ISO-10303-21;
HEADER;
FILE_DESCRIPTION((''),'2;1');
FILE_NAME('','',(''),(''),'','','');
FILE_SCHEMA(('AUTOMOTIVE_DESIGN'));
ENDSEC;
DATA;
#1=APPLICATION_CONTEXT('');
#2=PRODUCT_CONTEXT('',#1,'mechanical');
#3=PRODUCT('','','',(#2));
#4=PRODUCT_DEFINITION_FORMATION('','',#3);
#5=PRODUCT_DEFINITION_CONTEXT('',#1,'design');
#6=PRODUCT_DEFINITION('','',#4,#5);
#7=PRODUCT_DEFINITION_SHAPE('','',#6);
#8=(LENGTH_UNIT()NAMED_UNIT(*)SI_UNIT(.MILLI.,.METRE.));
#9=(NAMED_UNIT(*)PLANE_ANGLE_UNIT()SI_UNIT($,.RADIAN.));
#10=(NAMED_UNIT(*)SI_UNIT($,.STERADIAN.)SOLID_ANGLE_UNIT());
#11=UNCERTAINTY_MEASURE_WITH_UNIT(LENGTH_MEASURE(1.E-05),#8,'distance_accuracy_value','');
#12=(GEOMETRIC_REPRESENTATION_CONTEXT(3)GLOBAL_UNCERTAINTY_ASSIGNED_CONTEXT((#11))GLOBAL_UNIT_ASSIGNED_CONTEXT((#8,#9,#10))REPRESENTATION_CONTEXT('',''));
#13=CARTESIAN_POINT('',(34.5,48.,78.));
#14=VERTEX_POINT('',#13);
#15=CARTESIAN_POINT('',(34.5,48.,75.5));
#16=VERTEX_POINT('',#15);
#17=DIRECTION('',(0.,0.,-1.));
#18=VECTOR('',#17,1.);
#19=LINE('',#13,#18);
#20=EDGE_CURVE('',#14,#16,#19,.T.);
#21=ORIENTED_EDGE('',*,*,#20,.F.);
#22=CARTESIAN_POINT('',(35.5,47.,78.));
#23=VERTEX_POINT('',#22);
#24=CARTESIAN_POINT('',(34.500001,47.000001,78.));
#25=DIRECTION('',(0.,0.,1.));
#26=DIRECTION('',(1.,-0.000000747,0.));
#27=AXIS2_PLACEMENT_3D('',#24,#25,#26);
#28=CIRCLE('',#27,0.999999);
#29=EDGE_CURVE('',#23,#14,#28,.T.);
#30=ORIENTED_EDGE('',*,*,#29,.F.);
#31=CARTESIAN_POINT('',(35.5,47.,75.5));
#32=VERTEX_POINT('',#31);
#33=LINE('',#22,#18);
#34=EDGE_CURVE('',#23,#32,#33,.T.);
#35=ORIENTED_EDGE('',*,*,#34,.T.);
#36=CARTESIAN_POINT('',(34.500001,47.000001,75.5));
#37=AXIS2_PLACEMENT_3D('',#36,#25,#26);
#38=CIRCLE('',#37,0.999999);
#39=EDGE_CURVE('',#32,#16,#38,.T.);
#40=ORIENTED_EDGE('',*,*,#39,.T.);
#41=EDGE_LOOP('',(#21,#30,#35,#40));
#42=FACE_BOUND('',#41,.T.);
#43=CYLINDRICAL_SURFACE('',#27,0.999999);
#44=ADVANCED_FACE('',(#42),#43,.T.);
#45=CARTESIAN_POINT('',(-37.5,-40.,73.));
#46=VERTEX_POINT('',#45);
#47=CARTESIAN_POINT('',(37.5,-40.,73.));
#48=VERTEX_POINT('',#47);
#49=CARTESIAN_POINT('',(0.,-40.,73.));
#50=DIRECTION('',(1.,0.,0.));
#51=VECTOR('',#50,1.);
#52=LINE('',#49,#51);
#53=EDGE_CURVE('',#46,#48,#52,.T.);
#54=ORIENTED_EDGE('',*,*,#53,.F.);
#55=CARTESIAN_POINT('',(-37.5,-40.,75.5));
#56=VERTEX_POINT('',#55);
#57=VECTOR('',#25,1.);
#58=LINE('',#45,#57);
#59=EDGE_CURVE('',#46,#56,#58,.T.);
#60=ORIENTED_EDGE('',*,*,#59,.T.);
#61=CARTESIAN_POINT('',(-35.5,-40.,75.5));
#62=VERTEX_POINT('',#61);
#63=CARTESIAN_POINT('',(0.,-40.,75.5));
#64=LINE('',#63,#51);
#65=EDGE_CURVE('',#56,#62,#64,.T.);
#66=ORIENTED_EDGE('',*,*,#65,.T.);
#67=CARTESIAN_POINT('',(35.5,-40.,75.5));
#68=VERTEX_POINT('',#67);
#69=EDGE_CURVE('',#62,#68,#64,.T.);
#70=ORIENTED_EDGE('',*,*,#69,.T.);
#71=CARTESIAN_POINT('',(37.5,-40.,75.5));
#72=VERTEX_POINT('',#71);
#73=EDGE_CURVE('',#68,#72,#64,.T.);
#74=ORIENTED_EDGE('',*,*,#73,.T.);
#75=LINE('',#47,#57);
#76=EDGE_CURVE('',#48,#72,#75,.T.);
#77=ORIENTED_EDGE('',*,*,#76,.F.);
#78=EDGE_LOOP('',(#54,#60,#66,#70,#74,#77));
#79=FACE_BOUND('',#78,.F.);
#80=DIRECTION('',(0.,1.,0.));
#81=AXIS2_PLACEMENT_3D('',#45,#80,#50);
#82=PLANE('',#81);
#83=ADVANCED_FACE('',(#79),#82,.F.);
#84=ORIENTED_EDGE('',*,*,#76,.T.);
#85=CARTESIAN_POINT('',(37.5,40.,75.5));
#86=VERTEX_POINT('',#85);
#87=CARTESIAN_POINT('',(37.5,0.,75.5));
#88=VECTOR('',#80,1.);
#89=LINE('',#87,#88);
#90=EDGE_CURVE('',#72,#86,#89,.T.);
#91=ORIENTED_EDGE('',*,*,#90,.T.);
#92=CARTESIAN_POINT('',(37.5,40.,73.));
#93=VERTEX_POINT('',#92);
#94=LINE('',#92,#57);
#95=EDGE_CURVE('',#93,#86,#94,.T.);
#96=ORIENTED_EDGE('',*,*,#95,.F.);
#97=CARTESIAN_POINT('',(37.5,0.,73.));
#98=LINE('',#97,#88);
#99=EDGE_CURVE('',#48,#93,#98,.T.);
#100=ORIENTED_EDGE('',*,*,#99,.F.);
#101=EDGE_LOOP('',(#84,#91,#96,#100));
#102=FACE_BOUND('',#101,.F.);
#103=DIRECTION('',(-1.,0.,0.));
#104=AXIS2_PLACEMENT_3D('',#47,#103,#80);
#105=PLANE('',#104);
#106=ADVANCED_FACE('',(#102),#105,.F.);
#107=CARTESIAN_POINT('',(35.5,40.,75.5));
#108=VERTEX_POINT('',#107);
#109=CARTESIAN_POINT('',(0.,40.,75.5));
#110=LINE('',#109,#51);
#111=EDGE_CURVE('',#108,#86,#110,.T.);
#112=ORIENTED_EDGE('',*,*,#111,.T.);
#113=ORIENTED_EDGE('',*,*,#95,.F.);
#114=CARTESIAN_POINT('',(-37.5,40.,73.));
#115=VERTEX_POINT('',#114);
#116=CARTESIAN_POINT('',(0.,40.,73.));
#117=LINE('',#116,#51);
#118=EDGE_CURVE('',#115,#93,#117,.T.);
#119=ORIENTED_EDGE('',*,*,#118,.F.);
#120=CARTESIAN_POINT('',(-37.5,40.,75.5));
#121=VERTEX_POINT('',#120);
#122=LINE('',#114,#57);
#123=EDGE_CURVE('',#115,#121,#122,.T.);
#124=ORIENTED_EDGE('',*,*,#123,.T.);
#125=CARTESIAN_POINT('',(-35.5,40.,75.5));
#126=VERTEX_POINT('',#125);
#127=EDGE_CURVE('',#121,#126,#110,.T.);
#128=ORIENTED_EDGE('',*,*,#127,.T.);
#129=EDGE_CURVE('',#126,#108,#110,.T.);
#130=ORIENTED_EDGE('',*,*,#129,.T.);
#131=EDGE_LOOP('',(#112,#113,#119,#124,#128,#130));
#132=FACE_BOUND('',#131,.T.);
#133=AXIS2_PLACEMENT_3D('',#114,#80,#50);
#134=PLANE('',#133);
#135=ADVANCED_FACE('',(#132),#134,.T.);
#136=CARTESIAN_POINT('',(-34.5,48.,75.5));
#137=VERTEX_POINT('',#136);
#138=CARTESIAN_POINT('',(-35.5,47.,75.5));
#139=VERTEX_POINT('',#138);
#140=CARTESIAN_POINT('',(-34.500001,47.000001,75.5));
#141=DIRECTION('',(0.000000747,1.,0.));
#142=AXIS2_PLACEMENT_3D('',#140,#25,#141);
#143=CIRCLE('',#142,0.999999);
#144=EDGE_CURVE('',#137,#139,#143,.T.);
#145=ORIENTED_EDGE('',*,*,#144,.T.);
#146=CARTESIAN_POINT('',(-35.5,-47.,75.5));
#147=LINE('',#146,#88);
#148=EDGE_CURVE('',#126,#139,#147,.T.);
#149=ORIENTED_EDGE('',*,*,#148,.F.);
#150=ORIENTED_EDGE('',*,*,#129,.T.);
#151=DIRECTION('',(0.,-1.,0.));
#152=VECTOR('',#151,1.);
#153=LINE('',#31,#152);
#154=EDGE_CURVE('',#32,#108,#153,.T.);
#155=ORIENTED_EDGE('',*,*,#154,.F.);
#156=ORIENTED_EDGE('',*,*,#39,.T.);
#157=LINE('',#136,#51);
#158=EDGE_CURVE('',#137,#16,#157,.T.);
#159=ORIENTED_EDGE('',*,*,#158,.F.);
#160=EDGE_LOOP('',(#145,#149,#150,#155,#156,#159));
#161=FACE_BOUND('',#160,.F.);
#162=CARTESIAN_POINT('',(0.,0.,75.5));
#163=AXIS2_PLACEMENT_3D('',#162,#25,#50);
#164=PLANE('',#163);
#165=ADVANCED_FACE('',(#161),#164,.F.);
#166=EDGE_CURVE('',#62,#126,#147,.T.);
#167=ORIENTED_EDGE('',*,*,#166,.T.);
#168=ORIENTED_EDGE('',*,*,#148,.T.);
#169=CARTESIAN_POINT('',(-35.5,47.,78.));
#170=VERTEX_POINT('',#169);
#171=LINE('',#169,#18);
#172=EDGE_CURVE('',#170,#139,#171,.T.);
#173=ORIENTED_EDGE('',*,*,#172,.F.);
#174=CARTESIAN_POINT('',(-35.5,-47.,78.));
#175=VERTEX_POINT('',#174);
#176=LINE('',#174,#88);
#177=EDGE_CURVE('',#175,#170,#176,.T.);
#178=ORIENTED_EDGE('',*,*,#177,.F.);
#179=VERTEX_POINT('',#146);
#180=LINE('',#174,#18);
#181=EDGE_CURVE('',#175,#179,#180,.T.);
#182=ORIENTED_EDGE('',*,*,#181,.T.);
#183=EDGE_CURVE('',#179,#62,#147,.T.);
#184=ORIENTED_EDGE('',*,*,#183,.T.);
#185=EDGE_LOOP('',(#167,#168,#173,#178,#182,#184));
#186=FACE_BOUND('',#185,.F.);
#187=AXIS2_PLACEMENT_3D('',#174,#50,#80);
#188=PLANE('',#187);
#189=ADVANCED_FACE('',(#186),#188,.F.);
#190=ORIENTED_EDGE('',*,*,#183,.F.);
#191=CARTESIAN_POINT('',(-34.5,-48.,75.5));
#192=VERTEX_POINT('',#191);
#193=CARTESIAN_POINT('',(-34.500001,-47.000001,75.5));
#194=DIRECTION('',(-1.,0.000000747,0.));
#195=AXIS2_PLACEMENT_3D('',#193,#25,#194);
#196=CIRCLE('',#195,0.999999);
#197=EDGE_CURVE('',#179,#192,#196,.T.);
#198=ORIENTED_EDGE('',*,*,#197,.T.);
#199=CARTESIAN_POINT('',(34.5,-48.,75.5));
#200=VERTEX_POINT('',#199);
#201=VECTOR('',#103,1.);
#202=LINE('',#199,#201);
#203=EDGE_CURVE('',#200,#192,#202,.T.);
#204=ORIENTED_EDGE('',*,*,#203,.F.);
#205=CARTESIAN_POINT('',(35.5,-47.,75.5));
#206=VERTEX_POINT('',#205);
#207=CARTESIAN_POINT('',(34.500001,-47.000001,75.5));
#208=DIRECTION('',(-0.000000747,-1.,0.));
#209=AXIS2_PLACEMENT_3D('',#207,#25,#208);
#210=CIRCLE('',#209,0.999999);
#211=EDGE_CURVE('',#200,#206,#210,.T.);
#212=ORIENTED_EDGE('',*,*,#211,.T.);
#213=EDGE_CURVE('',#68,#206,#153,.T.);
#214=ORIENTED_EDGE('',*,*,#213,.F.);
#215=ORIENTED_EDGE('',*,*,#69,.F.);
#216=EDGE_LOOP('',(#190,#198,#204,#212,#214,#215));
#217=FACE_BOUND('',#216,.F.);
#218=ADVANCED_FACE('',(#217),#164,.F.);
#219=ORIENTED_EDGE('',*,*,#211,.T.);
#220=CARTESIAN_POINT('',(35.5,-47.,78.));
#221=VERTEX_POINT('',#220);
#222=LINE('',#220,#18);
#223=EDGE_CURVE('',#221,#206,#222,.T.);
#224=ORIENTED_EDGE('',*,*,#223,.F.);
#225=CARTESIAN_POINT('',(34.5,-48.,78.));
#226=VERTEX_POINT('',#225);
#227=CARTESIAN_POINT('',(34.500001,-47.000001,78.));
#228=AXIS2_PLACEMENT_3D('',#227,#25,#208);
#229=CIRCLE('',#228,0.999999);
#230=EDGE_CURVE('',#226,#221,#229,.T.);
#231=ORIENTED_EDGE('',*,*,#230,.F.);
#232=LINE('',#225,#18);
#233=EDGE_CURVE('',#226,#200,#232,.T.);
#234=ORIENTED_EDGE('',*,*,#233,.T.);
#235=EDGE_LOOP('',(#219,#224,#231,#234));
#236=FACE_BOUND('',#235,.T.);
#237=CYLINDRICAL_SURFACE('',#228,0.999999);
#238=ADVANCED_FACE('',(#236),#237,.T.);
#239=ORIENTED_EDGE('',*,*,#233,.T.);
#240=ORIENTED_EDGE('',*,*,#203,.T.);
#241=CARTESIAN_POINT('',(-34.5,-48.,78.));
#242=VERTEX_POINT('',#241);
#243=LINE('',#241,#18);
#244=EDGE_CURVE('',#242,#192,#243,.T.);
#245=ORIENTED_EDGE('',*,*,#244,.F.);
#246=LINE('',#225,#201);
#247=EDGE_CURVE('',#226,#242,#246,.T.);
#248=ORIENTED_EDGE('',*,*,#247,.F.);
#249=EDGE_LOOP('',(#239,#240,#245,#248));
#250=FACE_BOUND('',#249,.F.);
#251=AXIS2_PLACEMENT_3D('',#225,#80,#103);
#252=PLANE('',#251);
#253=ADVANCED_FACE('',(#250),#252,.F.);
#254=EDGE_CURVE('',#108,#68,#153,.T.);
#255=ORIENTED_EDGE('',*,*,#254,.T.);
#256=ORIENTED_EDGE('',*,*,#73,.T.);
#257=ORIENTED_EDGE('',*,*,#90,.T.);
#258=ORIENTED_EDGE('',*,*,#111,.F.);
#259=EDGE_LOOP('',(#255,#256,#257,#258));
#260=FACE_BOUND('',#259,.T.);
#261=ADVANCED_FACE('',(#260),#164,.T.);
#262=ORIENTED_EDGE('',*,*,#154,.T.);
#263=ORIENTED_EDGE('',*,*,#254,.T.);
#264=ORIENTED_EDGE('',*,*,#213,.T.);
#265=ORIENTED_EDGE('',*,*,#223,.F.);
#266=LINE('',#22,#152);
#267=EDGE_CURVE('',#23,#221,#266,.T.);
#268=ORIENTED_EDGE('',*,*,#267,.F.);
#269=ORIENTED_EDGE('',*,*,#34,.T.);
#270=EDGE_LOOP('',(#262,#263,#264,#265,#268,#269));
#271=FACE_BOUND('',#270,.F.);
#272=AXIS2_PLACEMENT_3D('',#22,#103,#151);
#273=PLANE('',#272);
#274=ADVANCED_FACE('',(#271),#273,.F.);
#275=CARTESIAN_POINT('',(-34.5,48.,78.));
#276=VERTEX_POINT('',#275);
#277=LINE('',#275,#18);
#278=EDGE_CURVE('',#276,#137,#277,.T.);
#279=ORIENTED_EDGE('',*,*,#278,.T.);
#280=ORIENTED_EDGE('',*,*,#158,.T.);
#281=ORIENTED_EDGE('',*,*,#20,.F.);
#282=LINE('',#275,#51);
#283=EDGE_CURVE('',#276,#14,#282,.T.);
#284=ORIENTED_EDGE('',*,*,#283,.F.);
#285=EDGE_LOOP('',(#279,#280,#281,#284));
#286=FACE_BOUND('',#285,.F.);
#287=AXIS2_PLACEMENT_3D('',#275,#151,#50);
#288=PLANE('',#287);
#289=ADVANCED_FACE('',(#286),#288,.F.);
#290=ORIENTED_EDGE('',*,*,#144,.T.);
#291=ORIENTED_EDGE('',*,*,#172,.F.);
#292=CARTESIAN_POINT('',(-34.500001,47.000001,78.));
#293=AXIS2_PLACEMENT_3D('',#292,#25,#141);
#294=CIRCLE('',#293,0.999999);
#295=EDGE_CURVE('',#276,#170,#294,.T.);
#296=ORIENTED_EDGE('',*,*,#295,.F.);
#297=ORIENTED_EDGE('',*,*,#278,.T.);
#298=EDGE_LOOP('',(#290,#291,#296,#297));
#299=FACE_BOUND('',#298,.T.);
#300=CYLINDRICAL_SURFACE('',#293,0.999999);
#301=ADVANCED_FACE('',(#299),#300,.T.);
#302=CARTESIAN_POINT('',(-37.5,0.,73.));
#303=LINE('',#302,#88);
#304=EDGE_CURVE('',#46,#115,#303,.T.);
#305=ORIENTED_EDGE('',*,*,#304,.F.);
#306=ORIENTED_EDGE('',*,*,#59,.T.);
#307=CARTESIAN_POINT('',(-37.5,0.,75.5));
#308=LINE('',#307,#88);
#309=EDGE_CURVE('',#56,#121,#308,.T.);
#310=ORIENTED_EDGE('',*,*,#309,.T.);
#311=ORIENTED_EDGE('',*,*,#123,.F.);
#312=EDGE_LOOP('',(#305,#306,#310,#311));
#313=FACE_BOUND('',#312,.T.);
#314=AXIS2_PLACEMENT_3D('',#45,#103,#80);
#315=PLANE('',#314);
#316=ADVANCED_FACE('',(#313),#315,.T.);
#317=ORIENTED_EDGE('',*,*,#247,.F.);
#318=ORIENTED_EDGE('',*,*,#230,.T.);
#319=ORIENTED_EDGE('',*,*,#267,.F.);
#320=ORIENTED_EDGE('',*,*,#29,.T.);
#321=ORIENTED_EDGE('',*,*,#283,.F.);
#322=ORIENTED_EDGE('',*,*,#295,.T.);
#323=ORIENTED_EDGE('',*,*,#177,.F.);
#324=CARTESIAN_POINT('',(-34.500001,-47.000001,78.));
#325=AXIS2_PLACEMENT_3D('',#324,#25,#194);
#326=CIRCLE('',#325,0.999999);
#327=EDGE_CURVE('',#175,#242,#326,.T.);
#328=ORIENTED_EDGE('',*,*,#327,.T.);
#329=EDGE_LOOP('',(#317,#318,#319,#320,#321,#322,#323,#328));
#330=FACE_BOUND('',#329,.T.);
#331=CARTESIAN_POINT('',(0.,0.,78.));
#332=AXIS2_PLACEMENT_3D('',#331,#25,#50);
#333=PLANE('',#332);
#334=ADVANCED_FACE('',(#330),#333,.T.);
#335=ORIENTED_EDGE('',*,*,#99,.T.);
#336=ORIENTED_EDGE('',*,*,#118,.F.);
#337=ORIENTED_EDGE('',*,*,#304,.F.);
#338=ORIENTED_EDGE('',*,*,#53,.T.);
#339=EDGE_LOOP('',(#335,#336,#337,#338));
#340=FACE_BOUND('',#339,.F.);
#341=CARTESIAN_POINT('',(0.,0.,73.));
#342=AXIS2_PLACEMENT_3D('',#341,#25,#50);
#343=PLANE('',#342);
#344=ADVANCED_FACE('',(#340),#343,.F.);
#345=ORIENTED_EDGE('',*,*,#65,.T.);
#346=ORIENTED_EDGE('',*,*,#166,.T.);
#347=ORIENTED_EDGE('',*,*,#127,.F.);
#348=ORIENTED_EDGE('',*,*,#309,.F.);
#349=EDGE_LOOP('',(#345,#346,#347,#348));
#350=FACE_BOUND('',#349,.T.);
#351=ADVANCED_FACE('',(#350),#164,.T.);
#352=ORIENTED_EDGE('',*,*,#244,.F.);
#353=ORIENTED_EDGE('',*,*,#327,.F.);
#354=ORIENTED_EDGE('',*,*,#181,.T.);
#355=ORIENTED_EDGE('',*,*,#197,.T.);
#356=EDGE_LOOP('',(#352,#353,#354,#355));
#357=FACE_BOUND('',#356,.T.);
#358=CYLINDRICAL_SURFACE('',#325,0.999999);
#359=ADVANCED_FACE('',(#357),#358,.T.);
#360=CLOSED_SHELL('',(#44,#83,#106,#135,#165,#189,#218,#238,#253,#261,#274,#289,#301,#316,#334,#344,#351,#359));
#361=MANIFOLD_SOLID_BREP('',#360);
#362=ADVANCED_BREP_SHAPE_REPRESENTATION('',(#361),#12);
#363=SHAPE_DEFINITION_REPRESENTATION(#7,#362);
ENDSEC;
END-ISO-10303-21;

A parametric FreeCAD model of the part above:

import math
import FreeCAD as App
import Part
import Sketcher

V = App.Vector
Q = App.Units.Quantity

doc = App.newDocument("Part")
body = doc.addObject("PartDesign::Body", "Body")

sketch1 = body.newObject("Sketcher::SketchObject", "Sketch")
sketch1.AttachmentSupport = (doc.getObject("XY_Plane"), [""])
sketch1.MapMode = "FlatFace"
sketch1.AttachmentOffset = App.Placement(V(0, 0, 73), App.Rotation())
sketch1.addGeometry([
    Part.LineSegment(V(-38, 40, 0), V(-38, -40, 0)),
    Part.LineSegment(V(-38, -40, 0), V(38, -40, 0)),
    Part.LineSegment(V(38, -40, 0), V(38, 40, 0)),
    Part.LineSegment(V(38, 40, 0), V(-38, 40, 0)),
], False)
sketch1.addConstraint([
    Sketcher.Constraint("Coincident", 0, 2, 1, 1),
    Sketcher.Constraint("Coincident", 1, 2, 2, 1),
    Sketcher.Constraint("Coincident", 2, 2, 3, 1),
    Sketcher.Constraint("Coincident", 3, 2, 0, 1),
    Sketcher.Constraint("Vertical", 0),
    Sketcher.Constraint("Horizontal", 1),
    Sketcher.Constraint("Vertical", 2),
    Sketcher.Constraint("Horizontal", 3),
    Sketcher.Constraint("Symmetric", 0, 2, 2, 2, -1, 1),
    Sketcher.Constraint("DistanceX", 1, 1, 1, 2, Q("75 mm")),
    Sketcher.Constraint("DistanceY", 0, 2, 0, 1, Q("80 mm")),
])
pad1 = body.newObject("PartDesign::Pad", "Pad")
pad1.Profile = sketch1
pad1.Length = 2.5
body2 = doc.addObject("PartDesign::Body", "Body001")

sketch2 = body2.newObject("Sketcher::SketchObject", "Sketch001")
sketch2.AttachmentSupport = (doc.getObject("XY_Plane001"), [""])
sketch2.MapMode = "FlatFace"
sketch2.AttachmentOffset = App.Placement(V(0, 0, 78), App.Rotation())
sketch2.addGeometry([
    Part.ArcOfCircle(Part.Circle(V(-34.5, 47, 0), V(0, 0, 1), 1), math.radians(90), math.radians(180)),
    Part.LineSegment(V(-35.5, 47, 0), V(-35.5, -47, 0)),
    Part.ArcOfCircle(Part.Circle(V(-34.5, -47, 0), V(0, 0, 1), 1), math.radians(180), math.radians(270)),
    Part.LineSegment(V(-34.5, -48, 0), V(34.5, -48, 0)),
    Part.ArcOfCircle(Part.Circle(V(34.5, -47, 0), V(0, 0, 1), 1), math.radians(-90), math.radians(0)),
    Part.LineSegment(V(35.5, -47, 0), V(35.5, 47, 0)),
    Part.ArcOfCircle(Part.Circle(V(34.5, 47, 0), V(0, 0, 1), 1), math.radians(0), math.radians(90)),
    Part.LineSegment(V(34.5, 48, 0), V(-34.5, 48, 0)),
], False)
sketch2.addConstraint([
    Sketcher.Constraint("Tangent", 0, 2, 1, 1),
    Sketcher.Constraint("Tangent", 1, 2, 2, 1),
    Sketcher.Constraint("Tangent", 2, 2, 3, 1),
    Sketcher.Constraint("Tangent", 3, 2, 4, 1),
    Sketcher.Constraint("Tangent", 4, 2, 5, 1),
    Sketcher.Constraint("Tangent", 5, 2, 6, 1),
    Sketcher.Constraint("Tangent", 6, 2, 7, 1),
    Sketcher.Constraint("Tangent", 7, 2, 0, 1),
    Sketcher.Constraint("Vertical", 1),
    Sketcher.Constraint("Horizontal", 3),
    Sketcher.Constraint("Vertical", 5),
    Sketcher.Constraint("Horizontal", 7),
    Sketcher.Constraint("Equal", 0, 2),
    Sketcher.Constraint("Equal", 2, 4),
    Sketcher.Constraint("Equal", 4, 6),
    Sketcher.Constraint("Symmetric", 0, 3, 4, 3, -1, 1),
    Sketcher.Constraint("Radius", 0, Q("0.999999 mm")),
    Sketcher.Constraint("DistanceX", 3, 1, 3, 2, Q("69 mm")),
    Sketcher.Constraint("DistanceY", 1, 2, 1, 1, Q("94 mm")),
])
pad2 = body2.newObject("PartDesign::Pad", "Pad001")
pad2.Profile = sketch2
pad2.Length = 2.5
pad2.Reversed = True
doc.recompute()

boolean = body2.newObject("PartDesign::Boolean", "Boolean")
boolean.Type = "Fuse"
boolean.addObjects([body])

doc.recompute()
